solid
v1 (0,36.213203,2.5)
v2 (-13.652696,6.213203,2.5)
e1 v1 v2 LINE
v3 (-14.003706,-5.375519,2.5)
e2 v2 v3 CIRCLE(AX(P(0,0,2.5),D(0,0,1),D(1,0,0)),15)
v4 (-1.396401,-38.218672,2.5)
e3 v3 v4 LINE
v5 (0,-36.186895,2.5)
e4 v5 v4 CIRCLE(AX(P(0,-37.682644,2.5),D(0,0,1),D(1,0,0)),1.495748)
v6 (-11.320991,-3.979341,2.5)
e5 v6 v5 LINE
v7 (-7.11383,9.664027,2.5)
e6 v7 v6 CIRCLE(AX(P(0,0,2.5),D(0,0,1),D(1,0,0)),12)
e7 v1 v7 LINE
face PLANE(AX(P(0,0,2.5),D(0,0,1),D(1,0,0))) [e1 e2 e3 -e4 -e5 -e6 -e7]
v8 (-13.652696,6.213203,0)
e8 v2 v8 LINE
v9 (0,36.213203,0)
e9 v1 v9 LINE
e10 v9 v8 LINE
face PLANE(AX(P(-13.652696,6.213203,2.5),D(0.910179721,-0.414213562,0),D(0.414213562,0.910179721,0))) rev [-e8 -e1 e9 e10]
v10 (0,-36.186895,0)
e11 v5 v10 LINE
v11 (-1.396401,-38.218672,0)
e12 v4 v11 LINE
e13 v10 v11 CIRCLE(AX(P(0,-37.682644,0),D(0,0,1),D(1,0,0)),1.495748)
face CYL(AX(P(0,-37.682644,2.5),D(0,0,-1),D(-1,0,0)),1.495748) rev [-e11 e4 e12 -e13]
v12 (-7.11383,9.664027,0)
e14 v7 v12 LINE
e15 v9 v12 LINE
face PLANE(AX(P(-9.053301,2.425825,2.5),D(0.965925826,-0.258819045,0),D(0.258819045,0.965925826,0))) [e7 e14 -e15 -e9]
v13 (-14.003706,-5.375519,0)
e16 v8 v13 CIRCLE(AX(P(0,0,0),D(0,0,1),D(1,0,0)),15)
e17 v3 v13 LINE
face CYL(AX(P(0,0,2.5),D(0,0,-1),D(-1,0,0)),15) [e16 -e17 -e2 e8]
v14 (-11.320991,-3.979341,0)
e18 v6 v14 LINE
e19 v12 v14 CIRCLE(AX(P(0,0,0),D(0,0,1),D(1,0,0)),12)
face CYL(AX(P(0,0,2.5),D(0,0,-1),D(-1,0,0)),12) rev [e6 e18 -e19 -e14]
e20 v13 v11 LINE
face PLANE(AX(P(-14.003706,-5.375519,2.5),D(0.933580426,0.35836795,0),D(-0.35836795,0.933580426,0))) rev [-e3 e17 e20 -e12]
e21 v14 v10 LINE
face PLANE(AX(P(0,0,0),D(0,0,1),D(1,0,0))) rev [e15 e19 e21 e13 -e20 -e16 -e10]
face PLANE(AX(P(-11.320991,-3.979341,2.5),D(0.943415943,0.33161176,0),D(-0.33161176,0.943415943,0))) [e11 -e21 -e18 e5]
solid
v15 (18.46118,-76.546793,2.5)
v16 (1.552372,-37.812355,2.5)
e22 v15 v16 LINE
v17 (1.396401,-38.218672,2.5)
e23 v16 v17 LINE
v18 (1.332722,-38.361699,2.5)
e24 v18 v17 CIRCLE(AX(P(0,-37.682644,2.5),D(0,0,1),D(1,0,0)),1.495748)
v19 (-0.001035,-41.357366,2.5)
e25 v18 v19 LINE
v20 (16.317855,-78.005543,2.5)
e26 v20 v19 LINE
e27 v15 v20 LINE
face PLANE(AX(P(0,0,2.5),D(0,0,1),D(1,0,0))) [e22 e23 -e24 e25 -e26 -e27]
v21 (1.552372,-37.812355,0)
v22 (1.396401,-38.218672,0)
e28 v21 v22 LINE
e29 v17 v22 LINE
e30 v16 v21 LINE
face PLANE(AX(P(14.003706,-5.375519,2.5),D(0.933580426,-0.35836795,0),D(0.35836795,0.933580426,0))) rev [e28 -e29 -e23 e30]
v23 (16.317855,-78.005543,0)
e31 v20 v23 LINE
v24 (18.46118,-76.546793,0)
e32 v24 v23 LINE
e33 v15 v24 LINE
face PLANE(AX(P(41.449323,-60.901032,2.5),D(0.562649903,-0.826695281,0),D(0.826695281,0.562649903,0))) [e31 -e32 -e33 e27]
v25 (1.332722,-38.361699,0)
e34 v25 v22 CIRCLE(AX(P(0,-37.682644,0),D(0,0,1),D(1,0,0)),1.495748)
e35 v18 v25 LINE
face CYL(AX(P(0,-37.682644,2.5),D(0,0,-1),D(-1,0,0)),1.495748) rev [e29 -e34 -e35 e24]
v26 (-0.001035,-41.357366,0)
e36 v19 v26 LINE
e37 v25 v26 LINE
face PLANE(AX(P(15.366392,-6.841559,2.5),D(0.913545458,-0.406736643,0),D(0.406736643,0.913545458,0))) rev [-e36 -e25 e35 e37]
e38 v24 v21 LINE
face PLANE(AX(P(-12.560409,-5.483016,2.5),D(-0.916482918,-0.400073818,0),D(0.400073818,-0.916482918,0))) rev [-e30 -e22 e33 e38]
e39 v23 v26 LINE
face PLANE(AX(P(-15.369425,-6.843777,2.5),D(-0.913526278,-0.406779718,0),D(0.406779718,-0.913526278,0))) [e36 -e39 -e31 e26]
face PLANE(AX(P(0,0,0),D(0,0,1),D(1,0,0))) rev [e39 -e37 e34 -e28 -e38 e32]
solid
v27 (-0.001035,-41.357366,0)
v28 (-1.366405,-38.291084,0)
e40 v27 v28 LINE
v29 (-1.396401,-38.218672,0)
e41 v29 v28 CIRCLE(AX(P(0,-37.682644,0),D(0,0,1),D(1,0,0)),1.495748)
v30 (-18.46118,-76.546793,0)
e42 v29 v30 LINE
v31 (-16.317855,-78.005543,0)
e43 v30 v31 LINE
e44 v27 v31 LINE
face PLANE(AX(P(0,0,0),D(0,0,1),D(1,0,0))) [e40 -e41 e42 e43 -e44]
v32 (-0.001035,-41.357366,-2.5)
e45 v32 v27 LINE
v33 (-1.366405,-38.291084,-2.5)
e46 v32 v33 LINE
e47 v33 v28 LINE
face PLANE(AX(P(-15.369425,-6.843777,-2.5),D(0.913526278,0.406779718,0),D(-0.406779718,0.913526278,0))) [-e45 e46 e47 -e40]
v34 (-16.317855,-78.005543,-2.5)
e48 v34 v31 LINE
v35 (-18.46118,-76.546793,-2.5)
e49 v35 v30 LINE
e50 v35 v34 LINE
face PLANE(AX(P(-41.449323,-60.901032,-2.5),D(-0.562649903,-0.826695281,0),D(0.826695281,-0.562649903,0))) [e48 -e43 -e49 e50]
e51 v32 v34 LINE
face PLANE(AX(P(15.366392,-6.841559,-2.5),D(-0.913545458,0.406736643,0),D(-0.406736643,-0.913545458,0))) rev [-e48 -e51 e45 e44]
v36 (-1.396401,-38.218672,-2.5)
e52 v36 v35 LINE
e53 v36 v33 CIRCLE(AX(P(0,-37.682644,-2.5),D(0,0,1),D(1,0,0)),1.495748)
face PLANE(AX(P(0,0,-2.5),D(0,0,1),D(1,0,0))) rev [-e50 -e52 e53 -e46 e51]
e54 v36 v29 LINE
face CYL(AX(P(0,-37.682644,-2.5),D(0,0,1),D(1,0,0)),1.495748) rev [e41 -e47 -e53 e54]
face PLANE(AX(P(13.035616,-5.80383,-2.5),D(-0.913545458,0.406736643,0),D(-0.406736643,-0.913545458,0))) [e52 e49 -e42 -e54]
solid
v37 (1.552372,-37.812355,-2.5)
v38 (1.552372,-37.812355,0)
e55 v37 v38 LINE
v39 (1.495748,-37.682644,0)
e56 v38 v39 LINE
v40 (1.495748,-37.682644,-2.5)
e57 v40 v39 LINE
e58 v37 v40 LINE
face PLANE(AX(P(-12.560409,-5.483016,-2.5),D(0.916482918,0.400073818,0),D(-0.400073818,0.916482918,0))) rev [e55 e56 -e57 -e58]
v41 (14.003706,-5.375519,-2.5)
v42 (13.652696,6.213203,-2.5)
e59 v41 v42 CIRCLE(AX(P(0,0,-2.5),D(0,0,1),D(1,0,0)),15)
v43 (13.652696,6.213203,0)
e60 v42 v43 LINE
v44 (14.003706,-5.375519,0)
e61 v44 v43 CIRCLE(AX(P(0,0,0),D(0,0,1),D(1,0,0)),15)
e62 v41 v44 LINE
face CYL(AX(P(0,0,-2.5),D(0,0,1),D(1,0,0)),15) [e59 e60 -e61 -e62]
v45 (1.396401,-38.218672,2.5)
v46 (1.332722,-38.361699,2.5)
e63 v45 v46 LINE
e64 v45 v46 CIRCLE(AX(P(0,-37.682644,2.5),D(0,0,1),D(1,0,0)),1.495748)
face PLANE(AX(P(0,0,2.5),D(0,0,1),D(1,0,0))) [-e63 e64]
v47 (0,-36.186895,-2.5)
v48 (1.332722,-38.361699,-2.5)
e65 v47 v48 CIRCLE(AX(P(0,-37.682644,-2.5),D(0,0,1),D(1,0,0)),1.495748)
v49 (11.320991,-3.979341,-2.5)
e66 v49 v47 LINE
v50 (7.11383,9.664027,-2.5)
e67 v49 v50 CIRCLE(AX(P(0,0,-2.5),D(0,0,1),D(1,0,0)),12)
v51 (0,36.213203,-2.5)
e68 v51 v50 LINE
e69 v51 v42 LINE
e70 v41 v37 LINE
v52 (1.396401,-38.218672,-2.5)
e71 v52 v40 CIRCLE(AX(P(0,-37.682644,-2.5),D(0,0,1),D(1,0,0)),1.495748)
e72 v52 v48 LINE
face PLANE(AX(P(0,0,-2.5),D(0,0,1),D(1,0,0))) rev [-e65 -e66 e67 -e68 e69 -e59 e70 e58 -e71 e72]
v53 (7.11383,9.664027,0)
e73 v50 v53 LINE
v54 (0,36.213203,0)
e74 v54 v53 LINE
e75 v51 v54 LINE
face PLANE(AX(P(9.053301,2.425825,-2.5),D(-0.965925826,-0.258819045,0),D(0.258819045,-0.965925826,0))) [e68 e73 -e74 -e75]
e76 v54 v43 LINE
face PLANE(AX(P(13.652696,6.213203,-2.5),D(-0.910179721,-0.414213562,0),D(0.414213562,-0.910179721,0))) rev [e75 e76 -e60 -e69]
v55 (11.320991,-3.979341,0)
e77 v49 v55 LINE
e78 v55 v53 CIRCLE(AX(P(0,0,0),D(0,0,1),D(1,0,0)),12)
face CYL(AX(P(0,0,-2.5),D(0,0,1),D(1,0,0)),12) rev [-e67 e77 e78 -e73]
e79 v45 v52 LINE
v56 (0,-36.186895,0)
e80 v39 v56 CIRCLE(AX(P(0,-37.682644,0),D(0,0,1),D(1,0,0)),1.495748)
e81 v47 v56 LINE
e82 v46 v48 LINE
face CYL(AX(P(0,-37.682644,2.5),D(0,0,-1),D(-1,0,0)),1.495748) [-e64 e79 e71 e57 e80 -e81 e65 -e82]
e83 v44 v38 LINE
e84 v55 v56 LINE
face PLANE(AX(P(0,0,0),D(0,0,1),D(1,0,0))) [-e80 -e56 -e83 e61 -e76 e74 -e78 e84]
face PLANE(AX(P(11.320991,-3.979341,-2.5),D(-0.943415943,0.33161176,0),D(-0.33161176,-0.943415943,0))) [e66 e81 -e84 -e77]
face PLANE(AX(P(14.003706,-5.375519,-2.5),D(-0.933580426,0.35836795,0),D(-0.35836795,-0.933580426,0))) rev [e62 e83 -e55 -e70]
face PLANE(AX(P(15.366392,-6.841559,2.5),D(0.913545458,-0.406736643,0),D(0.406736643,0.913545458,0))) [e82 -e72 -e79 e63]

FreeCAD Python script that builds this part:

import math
import FreeCAD as App
import Part
import Sketcher

V = App.Vector
Q = App.Units.Quantity

doc = App.newDocument("Part")
body = doc.addObject("PartDesign::Body", "Body")

# Sketch on XY plane
sketch1 = body.newObject("Sketcher::SketchObject", "Sketch")
sketch1.AttachmentSupport = (doc.getObject("XY_Plane"), [""])
sketch1.MapMode = "FlatFace"
sketch1.addGeometry([
    Part.ArcOfCircle(Part.Circle(V(0, -37.68, 0), V(0, 0, 1), 1.5), math.radians(0), math.radians(90)),  # 0
    Part.ArcOfCircle(Part.Circle(V(0, -37.68, 0), V(0, 0, 1), 1.5), math.radians(90), math.radians(201)),  # 1
    Part.ArcOfCircle(Part.Circle(V(0, -37.68, 0), V(0, 0, 1), 1.5), math.radians(-159), math.radians(-156)),  # 2
    Part.ArcOfCircle(Part.Circle(V(0, -37.68, 0), V(0, 0, 1), 1.5), math.radians(-156), math.radians(-27)),  # 3
    Part.LineSegment(V(1.33, -38.36, 0), V(1.4, -38.22, 0)),  # 4
    Part.ArcOfCircle(Part.Circle(V(0, -37.68, 0), V(0, 0, 1), 1.5), math.radians(-21), math.radians(0)),  # 5
], False)
sketch1.addConstraint([
    Sketcher.Constraint("Tangent", 0, 2, 1, 1),
    Sketcher.Constraint("Tangent", 1, 2, 2, 1),
    Sketcher.Constraint("Tangent", 2, 2, 3, 1),
    Sketcher.Constraint("Coincident", 3, 2, 4, 1),
    Sketcher.Constraint("Coincident", 4, 2, 5, 1),
    Sketcher.Constraint("Tangent", 5, 2, 0, 1),
    Sketcher.Constraint("Coincident", 2, 3, 0, 3),
    Sketcher.Constraint("Equal", 2, 3),
    Sketcher.Constraint("Equal", 3, 5),
    Sketcher.Constraint("Symmetric", 1, 2, 4, 2, -2),
    Sketcher.Constraint("PointOnObject", 0, 2, -2),
    Sketcher.Constraint("Horizontal", 3, 3, 5, 2),
    Sketcher.Constraint("Angle", 4, Q("66 deg")),
    Sketcher.Constraint("Radius", 0, Q("1.495748 mm")),
    Sketcher.Constraint("DistanceX", 1, 2, -1, 1, Q("1.396401 mm")),
    Sketcher.Constraint("DistanceY", 3, 2, -1, 1, Q("38.361699 mm")),
    Sketcher.Constraint("DistanceY", 2, 2, 1, 2, Q("0.072412 mm")),
])
pad1 = body.newObject("PartDesign::Pad", "Pad")
pad1.Profile = sketch1
pad1.Length = 5
pad1.Midplane = True

# Sketch on XY plane
sketch2 = body.newObject("Sketcher::SketchObject", "Sketch001")
sketch2.AttachmentSupport = (doc.getObject("XY_Plane"), [""])
sketch2.MapMode = "FlatFace"
sketch2.addGeometry([
    Part.LineSegment(V(13.65, 6.21, 0), V(0, 36.21, 0)),  # 0
    Part.LineSegment(V(0, 36.21, 0), V(7.11, 9.66, 0)),  # 1
    Part.ArcOfCircle(Part.Circle(V(0, 0, 0), V(0, 0, 1), 12), math.radians(-19), math.radians(54)),  # 2
    Part.LineSegment(V(11.32, -3.98, 0), V(0, -36.19, 0)),  # 3
    Part.ArcOfCircle(Part.Circle(V(0, -37.68, 0), V(0, 0, 1), 1.5), math.radians(0), math.radians(90)),  # 4
    Part.LineSegment(V(1.5, -37.68, 0), V(1.55, -37.81, 0)),  # 5
    Part.LineSegment(V(1.55, -37.81, 0), V(14, -5.38, 0)),  # 6
    Part.ArcOfCircle(Part.Circle(V(0, 0, 0), V(0, 0, 1), 15), math.radians(-21), math.radians(24)),  # 7
], False)
sketch2.addConstraint([
    Sketcher.Constraint("Coincident", 0, 2, 1, 1),
    Sketcher.Constraint("Coincident", 1, 2, 2, 2),
    Sketcher.Constraint("Tangent", 2, 1, 3, 1),
    Sketcher.Constraint("Coincident", 3, 2, 4, 2),
    Sketcher.Constraint("Coincident", 4, 1, 5, 1),
    Sketcher.Constraint("Coincident", 5, 2, 6, 1),
    Sketcher.Constraint("Tangent", 6, 2, 7, 1),
    Sketcher.Constraint("Tangent", 7, 2, 0, 1),
    Sketcher.Constraint("Coincident", 2, 3, -1, 1),
    Sketcher.Constraint("Coincident", 7, 3, -1, 1),
    Sketcher.Constraint("PointOnObject", 4, 3, -2),
    Sketcher.Constraint("PointOnObject", 0, 2, -2),
    Sketcher.Constraint("PointOnObject", 3, 2, -2),
    Sketcher.Constraint("Radius", 2, Q("12 mm")),
    Sketcher.Constraint("Radius", 7, Q("15 mm")),
    Sketcher.Constraint("Angle", 1, Q("-75 deg")),
    Sketcher.Constraint("Angle", 6, Q("69 deg")),
    Sketcher.Constraint("Radius", 4, Q("1.495748 mm")),
    Sketcher.Constraint("Distance", 1, Q("27.48573 mm")),
    Sketcher.Constraint("DistanceX", -1, 1, 2, 1, Q("11.320991 mm")),
    Sketcher.Constraint("DistanceX", -1, 1, 5, 2, Q("1.552372 mm")),
    Sketcher.Constraint("DistanceY", 4, 1, 3, 2, Q("1.495748 mm")),
])
pad2 = body.newObject("PartDesign::Pad", "Pad001")
pad2.Profile = sketch2
pad2.Length = 2.5
pad2.Reversed = True
body2 = doc.addObject("PartDesign::Body", "Body001")

# Sketch on XY plane
sketch3 = body2.newObject("Sketcher::SketchObject", "Sketch002")
sketch3.AttachmentSupport = (doc.getObject("XY_Plane001"), [""])
sketch3.MapMode = "FlatFace"
sketch3.addGeometry([
    Part.LineSegment(V(-7.1, 9.7, 0), V(0, 36.2, 0)),  # 0
    Part.LineSegment(V(0, 36.2, 0), V(-13.7, 6.2, 0)),  # 1
    Part.ArcOfCircle(Part.Circle(V(0, 0, 0), V(0, 0, 1), 15), math.radians(156), math.radians(201)),  # 2
    Part.LineSegment(V(-14, -5.4, 0), V(-1.4, -38.2, 0)),  # 3
    Part.ArcOfCircle(Part.Circle(V(0, -37.7, 0), V(0, 0, 1), 1.5), math.radians(90), math.radians(201)),  # 4
    Part.LineSegment(V(0, -36.2, 0), V(-11.3, -4, 0)),  # 5
    Part.ArcOfCircle(Part.Circle(V(0, 0, 0), V(0, 0, 1), 12), math.radians(126), math.radians(199)),  # 6
], False)
sketch3.addConstraint([
    Sketcher.Constraint("Coincident", 0, 2, 1, 1),
    Sketcher.Constraint("Tangent", 1, 2, 2, 1),
    Sketcher.Constraint("Tangent", 2, 2, 3, 1),
    Sketcher.Constraint("Tangent", 3, 2, 4, 2),
    Sketcher.Constraint("Coincident", 4, 1, 5, 1),
    Sketcher.Constraint("Tangent", 5, 2, 6, 2),
    Sketcher.Constraint("Coincident", 6, 1, 0, 1),
    Sketcher.Constraint("Coincident", 2, 3, -1, 1),
    Sketcher.Constraint("Coincident", 6, 3, -1, 1),
    Sketcher.Constraint("PointOnObject", 4, 3, -2),
    Sketcher.Constraint("PointOnObject", 0, 2, -2),
    Sketcher.Constraint("PointOnObject", 4, 1, -2),
    Sketcher.Constraint("Radius", 2, Q("15 mm")),
    Sketcher.Constraint("Radius", 6, Q("12 mm")),
    Sketcher.Constraint("Angle", 0, Q("75 deg")),
    Sketcher.Constraint("Angle", 3, Q("-69 deg")),
    Sketcher.Constraint("DistanceY", 1, 2, 0, 2, Q("30 mm")),
    Sketcher.Constraint("Radius", 4, Q("1.495748 mm")),
])
pad3 = body2.newObject("PartDesign::Pad", "Pad002")
pad3.Profile = sketch3
pad3.Length = 2.5
body3 = doc.addObject("PartDesign::Body", "Body002")

# Sketch on XY plane
sketch4 = body3.newObject("Sketcher::SketchObject", "Sketch003")
sketch4.AttachmentSupport = (doc.getObject("XY_Plane002"), [""])
sketch4.MapMode = "FlatFace"
sketch4.addGeometry([
    Part.LineSegment(V(18.46, -76.55, 0), V(1.55, -37.81, 0)),  # 0
    Part.LineSegment(V(1.55, -37.81, 0), V(1.4, -38.22, 0)),  # 1
    Part.ArcOfCircle(Part.Circle(V(0, -37.68, 0), V(0, 0, 1), 1.5), math.radians(-27), math.radians(-21)),  # 2
    Part.LineSegment(V(1.33, -38.36, 0), V(0, -41.36, 0)),  # 3
    Part.LineSegment(V(0, -41.36, 0), V(16.32, -78.01, 0)),  # 4
    Part.LineSegment(V(16.32, -78.01, 0), V(18.46, -76.55, 0)),  # 5
], False)
sketch4.addConstraint([
    Sketcher.Constraint("Coincident", 0, 2, 1, 1),
    Sketcher.Constraint("Tangent", 1, 2, 2, 2),
    Sketcher.Constraint("Coincident", 2, 1, 3, 1),
    Sketcher.Constraint("Coincident", 3, 2, 4, 1),
    Sketcher.Constraint("Coincident", 4, 2, 5, 1),
    Sketcher.Constraint("Coincident", 5, 2, 0, 1),
    Sketcher.Constraint("PointOnObject", 2, 3, -2),
    Sketcher.Constraint("Angle", 1, Q("-111 deg")),
    Sketcher.Constraint("Angle", 3, Q("-114 deg")),
    Sketcher.Constraint("Radius", 2, Q("1.495748 mm")),
    Sketcher.Constraint("DistanceY", 2, 1, -1, 1, Q("38.361699 mm")),
    Sketcher.Constraint("DistanceY", 4, 2, 2, 3, Q("40.322899 mm")),
    Sketcher.Constraint("Distance", 0, Q("42.264222 mm")),
    Sketcher.Constraint("DistanceX", -1, 1, 0, 2, Q("1.552372 mm")),
    Sketcher.Constraint("DistanceY", 1, 2, -1, 1, Q("38.218672 mm")),
    Sketcher.Constraint("DistanceX", -1, 1, 5, 2, Q("18.46118 mm")),
    Sketcher.Constraint("DistanceY", 3, 2, 0, 2, Q("3.545011 mm")),
    Sketcher.Constraint("DistanceX", 3, 2, 4, 2, Q("16.31889 mm")),
])
pad4 = body3.newObject("PartDesign::Pad", "Pad003")
pad4.Profile = sketch4
pad4.Length = 2.5
body4 = doc.addObject("PartDesign::Body", "Body003")

# Sketch on XY plane
sketch5 = body4.newObject("Sketcher::SketchObject", "Sketch004")
sketch5.AttachmentSupport = (doc.getObject("XY_Plane003"), [""])
sketch5.MapMode = "FlatFace"
sketch5.addGeometry([
    Part.ArcOfCircle(Part.Circle(V(0, -37.68, 0), V(0, 0, 1), 1.5), math.radians(-159), math.radians(-156)),  # 0
    Part.LineSegment(V(-1.4, -38.22, 0), V(-18.46, -76.55, 0)),  # 1
    Part.LineSegment(V(-18.46, -76.55, 0), V(-16.32, -78.01, 0)),  # 2
    Part.LineSegment(V(-16.32, -78.01, 0), V(0, -41.36, 0)),  # 3
    Part.LineSegment(V(0, -41.36, 0), V(-1.37, -38.29, 0)),  # 4
], False)
sketch5.addConstraint([
    Sketcher.Constraint("Coincident", 0, 1, 1, 1),
    Sketcher.Constraint("Coincident", 1, 2, 2, 1),
    Sketcher.Constraint("Coincident", 2, 2, 3, 1),
    Sketcher.Constraint("Coincident", 3, 2, 4, 1),
    Sketcher.Constraint("Tangent", 4, 2, 0, 2),
    Sketcher.Constraint("PointOnObject", 0, 3, -2),
    Sketcher.Constraint("Parallel", 1, 3),
    Sketcher.Constraint("Angle", 1, Q("-114 deg")),
    Sketcher.Constraint("Radius", 0, Q("1.495747 mm")),
    Sketcher.Constraint("DistanceX", 0, 1, -1, 1, Q("1.396401 mm")),
    Sketcher.Constraint("DistanceY", 2, 2, 0, 3, Q("40.322899 mm")),
    Sketcher.Constraint("Distance", 1, Q("41.955352 mm")),
    Sketcher.Constraint("DistanceY", 0, 1, -1, 1, Q("38.218672 mm")),
    Sketcher.Constraint("DistanceY", 3, 2, 0, 3, Q("3.674722 mm")),
    Sketcher.Constraint("DistanceY", 4, 2, 0, 1, Q("0.072412 mm")),
])
pad5 = body4.newObject("PartDesign::Pad", "Pad004")
pad5.Profile = sketch5
pad5.Length = 2.5
pad5.Reversed = True

doc.recompute()
